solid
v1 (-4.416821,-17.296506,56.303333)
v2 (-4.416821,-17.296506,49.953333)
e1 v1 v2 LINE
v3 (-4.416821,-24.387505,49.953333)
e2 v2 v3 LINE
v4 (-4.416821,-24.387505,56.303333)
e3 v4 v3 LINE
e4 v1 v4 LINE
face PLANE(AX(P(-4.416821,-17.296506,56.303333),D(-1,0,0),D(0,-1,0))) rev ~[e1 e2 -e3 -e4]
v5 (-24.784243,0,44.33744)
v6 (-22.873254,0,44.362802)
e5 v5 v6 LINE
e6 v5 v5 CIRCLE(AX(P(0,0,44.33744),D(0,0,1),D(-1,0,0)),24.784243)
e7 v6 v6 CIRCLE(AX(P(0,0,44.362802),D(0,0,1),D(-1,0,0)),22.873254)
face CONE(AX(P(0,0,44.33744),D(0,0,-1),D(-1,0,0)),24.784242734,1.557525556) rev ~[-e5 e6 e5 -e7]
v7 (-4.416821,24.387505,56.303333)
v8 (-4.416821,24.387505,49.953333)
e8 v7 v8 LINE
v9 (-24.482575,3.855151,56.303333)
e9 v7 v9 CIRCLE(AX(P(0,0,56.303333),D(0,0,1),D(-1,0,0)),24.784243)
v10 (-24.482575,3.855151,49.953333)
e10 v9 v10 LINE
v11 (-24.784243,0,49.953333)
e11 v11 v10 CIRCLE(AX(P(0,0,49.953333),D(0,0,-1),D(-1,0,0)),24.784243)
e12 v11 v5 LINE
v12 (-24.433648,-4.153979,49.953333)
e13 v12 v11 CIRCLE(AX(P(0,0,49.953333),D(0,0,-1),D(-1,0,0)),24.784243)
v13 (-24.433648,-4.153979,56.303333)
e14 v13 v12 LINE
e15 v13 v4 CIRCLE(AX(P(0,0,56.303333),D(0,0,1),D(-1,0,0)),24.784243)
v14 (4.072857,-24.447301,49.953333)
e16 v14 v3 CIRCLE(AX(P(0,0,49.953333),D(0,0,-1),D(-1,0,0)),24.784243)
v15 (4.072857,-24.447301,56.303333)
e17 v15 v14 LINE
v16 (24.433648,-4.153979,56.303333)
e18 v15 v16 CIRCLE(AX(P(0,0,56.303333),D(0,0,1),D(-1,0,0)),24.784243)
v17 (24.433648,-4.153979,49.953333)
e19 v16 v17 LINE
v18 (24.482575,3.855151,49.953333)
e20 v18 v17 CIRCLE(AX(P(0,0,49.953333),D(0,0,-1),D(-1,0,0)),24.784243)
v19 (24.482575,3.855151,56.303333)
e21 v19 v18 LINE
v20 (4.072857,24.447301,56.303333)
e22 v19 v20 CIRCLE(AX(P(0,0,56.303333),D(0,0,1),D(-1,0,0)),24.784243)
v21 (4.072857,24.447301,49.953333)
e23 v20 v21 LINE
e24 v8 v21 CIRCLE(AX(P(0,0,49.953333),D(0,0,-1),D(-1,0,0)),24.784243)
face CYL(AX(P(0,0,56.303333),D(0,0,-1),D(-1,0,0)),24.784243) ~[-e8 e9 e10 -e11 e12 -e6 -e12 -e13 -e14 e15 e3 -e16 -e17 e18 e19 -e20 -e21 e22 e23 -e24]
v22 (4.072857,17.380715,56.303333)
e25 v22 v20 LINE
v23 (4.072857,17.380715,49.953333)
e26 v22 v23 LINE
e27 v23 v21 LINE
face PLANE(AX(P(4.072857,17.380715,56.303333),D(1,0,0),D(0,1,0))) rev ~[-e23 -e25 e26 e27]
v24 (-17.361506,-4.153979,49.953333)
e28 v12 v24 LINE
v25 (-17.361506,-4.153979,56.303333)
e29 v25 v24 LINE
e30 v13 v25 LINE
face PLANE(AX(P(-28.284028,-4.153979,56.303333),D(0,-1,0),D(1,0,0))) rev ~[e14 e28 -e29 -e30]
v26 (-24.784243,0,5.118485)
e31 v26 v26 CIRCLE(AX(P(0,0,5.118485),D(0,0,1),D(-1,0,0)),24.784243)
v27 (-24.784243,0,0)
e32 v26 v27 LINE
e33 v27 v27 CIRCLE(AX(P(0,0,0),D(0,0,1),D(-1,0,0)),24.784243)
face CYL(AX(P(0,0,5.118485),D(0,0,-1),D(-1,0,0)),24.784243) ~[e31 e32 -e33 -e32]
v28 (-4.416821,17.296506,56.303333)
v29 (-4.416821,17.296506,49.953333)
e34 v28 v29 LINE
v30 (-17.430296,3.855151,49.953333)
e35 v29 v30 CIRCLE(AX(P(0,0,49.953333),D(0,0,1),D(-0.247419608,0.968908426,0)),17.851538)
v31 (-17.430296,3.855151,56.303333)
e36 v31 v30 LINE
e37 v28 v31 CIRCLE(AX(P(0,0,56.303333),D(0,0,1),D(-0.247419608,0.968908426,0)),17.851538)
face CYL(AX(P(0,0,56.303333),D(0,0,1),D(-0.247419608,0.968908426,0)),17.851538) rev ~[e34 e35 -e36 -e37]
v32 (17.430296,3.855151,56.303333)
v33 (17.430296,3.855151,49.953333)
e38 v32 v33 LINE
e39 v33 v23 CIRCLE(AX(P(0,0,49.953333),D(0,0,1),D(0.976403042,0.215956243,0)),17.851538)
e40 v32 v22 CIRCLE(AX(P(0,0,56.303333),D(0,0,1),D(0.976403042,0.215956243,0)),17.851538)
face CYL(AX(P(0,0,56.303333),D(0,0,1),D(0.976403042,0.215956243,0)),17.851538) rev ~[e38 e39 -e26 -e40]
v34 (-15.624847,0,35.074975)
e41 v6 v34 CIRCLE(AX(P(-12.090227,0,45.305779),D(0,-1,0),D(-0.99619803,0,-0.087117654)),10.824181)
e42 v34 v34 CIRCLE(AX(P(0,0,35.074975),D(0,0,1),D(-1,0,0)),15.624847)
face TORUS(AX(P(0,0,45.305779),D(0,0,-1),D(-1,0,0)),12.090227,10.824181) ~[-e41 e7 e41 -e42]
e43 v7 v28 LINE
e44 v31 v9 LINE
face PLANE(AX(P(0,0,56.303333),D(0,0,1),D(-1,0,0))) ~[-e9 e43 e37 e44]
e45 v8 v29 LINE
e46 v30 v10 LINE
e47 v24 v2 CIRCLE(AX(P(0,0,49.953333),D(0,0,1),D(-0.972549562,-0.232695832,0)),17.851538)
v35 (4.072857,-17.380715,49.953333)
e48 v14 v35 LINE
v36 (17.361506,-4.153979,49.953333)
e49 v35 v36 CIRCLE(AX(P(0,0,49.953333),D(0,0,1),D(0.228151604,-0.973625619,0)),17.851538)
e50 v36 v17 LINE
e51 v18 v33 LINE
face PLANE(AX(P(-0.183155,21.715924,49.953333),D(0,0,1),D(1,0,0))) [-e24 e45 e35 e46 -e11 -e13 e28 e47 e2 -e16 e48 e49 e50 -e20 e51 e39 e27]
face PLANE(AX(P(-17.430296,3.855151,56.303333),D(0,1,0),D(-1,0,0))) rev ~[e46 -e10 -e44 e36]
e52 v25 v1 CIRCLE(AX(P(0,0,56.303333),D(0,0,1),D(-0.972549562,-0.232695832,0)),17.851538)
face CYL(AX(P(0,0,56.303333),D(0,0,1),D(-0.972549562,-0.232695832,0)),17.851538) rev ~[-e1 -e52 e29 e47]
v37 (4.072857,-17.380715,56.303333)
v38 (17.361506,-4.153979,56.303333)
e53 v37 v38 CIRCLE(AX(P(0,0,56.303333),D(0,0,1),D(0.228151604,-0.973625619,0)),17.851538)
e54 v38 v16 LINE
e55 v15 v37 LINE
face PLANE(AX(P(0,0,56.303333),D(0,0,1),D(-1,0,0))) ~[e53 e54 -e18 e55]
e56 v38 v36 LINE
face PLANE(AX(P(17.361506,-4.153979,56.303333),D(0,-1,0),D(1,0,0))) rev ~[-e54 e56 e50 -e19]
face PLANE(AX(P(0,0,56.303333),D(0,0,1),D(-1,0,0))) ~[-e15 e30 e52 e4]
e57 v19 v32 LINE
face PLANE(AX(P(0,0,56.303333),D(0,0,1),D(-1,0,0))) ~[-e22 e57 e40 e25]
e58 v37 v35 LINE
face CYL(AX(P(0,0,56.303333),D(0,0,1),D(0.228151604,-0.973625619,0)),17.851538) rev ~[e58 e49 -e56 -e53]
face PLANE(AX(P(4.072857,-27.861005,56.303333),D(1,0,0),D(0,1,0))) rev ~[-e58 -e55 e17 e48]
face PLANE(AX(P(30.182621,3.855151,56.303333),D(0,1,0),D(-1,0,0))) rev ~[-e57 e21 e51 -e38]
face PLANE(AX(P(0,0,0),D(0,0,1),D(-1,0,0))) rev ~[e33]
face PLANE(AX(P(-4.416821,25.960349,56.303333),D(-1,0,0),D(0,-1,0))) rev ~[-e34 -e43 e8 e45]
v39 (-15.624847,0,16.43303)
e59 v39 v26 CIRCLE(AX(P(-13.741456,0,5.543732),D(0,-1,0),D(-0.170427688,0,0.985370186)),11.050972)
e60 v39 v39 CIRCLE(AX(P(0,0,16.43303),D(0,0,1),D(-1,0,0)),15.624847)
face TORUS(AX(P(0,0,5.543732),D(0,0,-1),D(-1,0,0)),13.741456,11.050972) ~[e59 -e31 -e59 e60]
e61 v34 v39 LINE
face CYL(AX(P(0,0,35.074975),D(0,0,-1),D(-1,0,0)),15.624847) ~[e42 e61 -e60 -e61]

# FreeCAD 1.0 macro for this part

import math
import FreeCAD as App
import Part
import Sketcher
Q = App.Units.Quantity

doc = App.newDocument("Part")
body = doc.addObject("PartDesign::Body", "Body")

sketch1 = doc.addObject("Sketcher::SketchObject", "Sketch")
body.addObject(sketch1)
sketch1.AttachmentSupport = (doc.XZ_Plane, [""])
sketch1.MapMode = "FlatFace"
sketch1.addGeometry(Part.LineSegment(App.Vector(-24.784243, 0, 0), App.Vector(0, 0, 0)), False)
sketch1.addGeometry(Part.LineSegment(App.Vector(0, 0, 0), App.Vector(0, 56.303333, 0)), False)
sketch1.addGeometry(Part.LineSegment(App.Vector(0, 56.303333, 0), App.Vector(-24.784243, 56.303333, 0)), False)
sketch1.addGeometry(Part.LineSegment(App.Vector(-24.784243, 56.303333, 0), App.Vector(-24.784243, 44.33744, 0)), False)
sketch1.addGeometry(Part.LineSegment(App.Vector(-24.784243, 44.33744, 0), App.Vector(-22.873254, 44.362802, 0)), False)
sketch1.addGeometry(Part.ArcOfCircle(Part.Circle(App.Vector(-12.090227, 45.305779, 0), App.Vector(0, 0, 1), 10.824181), math.radians(-175.002191), math.radians(-109.059419)), False)
sketch1.addGeometry(Part.LineSegment(App.Vector(-15.624847, 35.074975, 0), App.Vector(-15.624847, 16.43303, 0)), False)
sketch1.addGeometry(Part.ArcOfCircle(Part.Circle(App.Vector(-13.741456, 5.543732, 0), App.Vector(0, 0, 1), 11.050972), math.radians(99.812687), math.radians(182.205317)), False)
sketch1.addGeometry(Part.LineSegment(App.Vector(-24.784243, 5.118485, 0), App.Vector(-24.784243, 0, 0)), False)
sketch1.addConstraint(Sketcher.Constraint("Coincident", 0, 2, 1, 1))
sketch1.addConstraint(Sketcher.Constraint("Coincident", 1, 2, 2, 1))
sketch1.addConstraint(Sketcher.Constraint("Coincident", 2, 2, 3, 1))
sketch1.addConstraint(Sketcher.Constraint("Coincident", 3, 2, 4, 1))
sketch1.addConstraint(Sketcher.Constraint("Coincident", 4, 2, 5, 1))
sketch1.addConstraint(Sketcher.Constraint("Coincident", 5, 2, 6, 1))
sketch1.addConstraint(Sketcher.Constraint("Coincident", 6, 2, 7, 1))
sketch1.addConstraint(Sketcher.Constraint("Coincident", 7, 2, 8, 1))
sketch1.addConstraint(Sketcher.Constraint("Coincident", 8, 2, 0, 1))
sketch1.addConstraint(Sketcher.Constraint("Horizontal", 0))
sketch1.addConstraint(Sketcher.Constraint("Vertical", 1))
sketch1.addConstraint(Sketcher.Constraint("Horizontal", 2))
sketch1.addConstraint(Sketcher.Constraint("Vertical", 3))
sketch1.addConstraint(Sketcher.Constraint("Vertical", 6))
sketch1.addConstraint(Sketcher.Constraint("Vertical", 8))
sketch1.addConstraint(Sketcher.Constraint("Coincident", 0, 2, -1, 1))
sketch1.addConstraint(Sketcher.Constraint("Vertical", 3, 2, 7, 2))
sketch1.addConstraint(Sketcher.Constraint("Radius", 5, Q("10.824181 mm")))
sketch1.addConstraint(Sketcher.Constraint("Radius", 7, Q("11.050972 mm")))
sketch1.addConstraint(Sketcher.Constraint("DistanceY", 7, 3, 1, 2, Q("50.759601 mm")))
sketch1.addConstraint(Sketcher.Constraint("DistanceX", 4, 2, 7, 3, Q("9.131799 mm")))
sketch1.addConstraint(Sketcher.Constraint("DistanceY", 7, 3, 6, 2, Q("10.889298 mm")))
sketch1.addConstraint(Sketcher.Constraint("DistanceX", 0, 1, 0, 2, Q("24.784243 mm")))
sketch1.addConstraint(Sketcher.Constraint("DistanceY", 1, 1, 1, 2, Q("56.303333 mm")))
sketch1.addConstraint(Sketcher.Constraint("DistanceY", 3, 2, 3, 1, Q("11.965893 mm")))
sketch1.addConstraint(Sketcher.Constraint("DistanceY", 6, 2, 6, 1, Q("18.641945 mm")))
sketch1.addConstraint(Sketcher.Constraint("DistanceY", 8, 2, 8, 1, Q("5.118485 mm")))
sketch1.addConstraint(Sketcher.Constraint("DistanceY", -1, 1, 5, 3, Q("45.305779 mm")))
revolution = doc.addObject("PartDesign::Revolution", "Revolution")
body.addObject(revolution)
revolution.Profile = sketch1
revolution.ReferenceAxis = (sketch1, ["V_Axis"])
revolution.Angle = 360

sketch2 = doc.addObject("Sketcher::SketchObject", "Sketch001")
body.addObject(sketch2)
sketch2.AttachmentSupport = (doc.XY_Plane, [""])
sketch2.MapMode = "FlatFace"
sketch2.AttachmentOffset = App.Placement(App.Vector(0, 0, 56.303333), App.Rotation())
sketch2.addGeometry(Part.ArcOfCircle(Part.Circle(App.Vector(0, 0, 0), App.Vector(0, 0, 1), 17.851538), math.radians(-76.811727), math.radians(-13.455839)), False)
sketch2.addGeometry(Part.LineSegment(App.Vector(17.361506, -4.153979, 0), App.Vector(30.182621, -4.153979, 0)), False)
sketch2.addGeometry(Part.LineSegment(App.Vector(30.182621, -4.153979, 0), App.Vector(30.182621, 3.855151, 0)), False)
sketch2.addGeometry(Part.LineSegment(App.Vector(30.182621, 3.855151, 0), App.Vector(17.430296, 3.855151, 0)), False)
sketch2.addGeometry(Part.ArcOfCircle(Part.Circle(App.Vector(0, 0, 0), App.Vector(0, 0, 1), 17.851538), math.radians(12.471634), math.radians(76.811727)), False)
sketch2.addGeometry(Part.LineSegment(App.Vector(4.072857, 17.380715, 0), App.Vector(4.072857, 25.960349, 0)), False)
sketch2.addGeometry(Part.LineSegment(App.Vector(4.072857, 25.960349, 0), App.Vector(-4.416821, 25.960349, 0)), False)
sketch2.addGeometry(Part.LineSegment(App.Vector(-4.416821, 25.960349, 0), App.Vector(-4.416821, 17.296506, 0)), False)
sketch2.addGeometry(Part.ArcOfCircle(Part.Circle(App.Vector(0, 0, 0), App.Vector(0, 0, 1), 17.851538), math.radians(104.32487), math.radians(167.528366)), False)
sketch2.addGeometry(Part.LineSegment(App.Vector(-17.430296, 3.855151, 0), App.Vector(-28.284028, 3.855151, 0)), False)
sketch2.addGeometry(Part.LineSegment(App.Vector(-28.284028, 3.855151, 0), App.Vector(-28.284028, -4.153979, 0)), False)
sketch2.addGeometry(Part.LineSegment(App.Vector(-28.284028, -4.153979, 0), App.Vector(-17.361506, -4.153979, 0)), False)
sketch2.addGeometry(Part.ArcOfCircle(Part.Circle(App.Vector(0, 0, 0), App.Vector(0, 0, 1), 17.851538), math.radians(-166.544161), math.radians(-104.32487)), False)
sketch2.addGeometry(Part.LineSegment(App.Vector(-4.416821, -17.296506, 0), App.Vector(-4.416821, -27.861005, 0)), False)
sketch2.addGeometry(Part.LineSegment(App.Vector(-4.416821, -27.861005, 0), App.Vector(4.072857, -27.861005, 0)), False)
sketch2.addGeometry(Part.LineSegment(App.Vector(4.072857, -27.861005, 0), App.Vector(4.072857, -17.380715, 0)), False)
sketch2.addConstraint(Sketcher.Constraint("Coincident", 0, 2, 1, 1))
sketch2.addConstraint(Sketcher.Constraint("Coincident", 1, 2, 2, 1))
sketch2.addConstraint(Sketcher.Constraint("Coincident", 2, 2, 3, 1))
sketch2.addConstraint(Sketcher.Constraint("Coincident", 3, 2, 4, 1))
sketch2.addConstraint(Sketcher.Constraint("Coincident", 4, 2, 5, 1))
sketch2.addConstraint(Sketcher.Constraint("Coincident", 5, 2, 6, 1))
sketch2.addConstraint(Sketcher.Constraint("Coincident", 6, 2, 7, 1))
sketch2.addConstraint(Sketcher.Constraint("Coincident", 7, 2, 8, 1))
sketch2.addConstraint(Sketcher.Constraint("Coincident", 8, 2, 9, 1))
sketch2.addConstraint(Sketcher.Constraint("Coincident", 9, 2, 10, 1))
sketch2.addConstraint(Sketcher.Constraint("Coincident", 10, 2, 11, 1))
sketch2.addConstraint(Sketcher.Constraint("Coincident", 11, 2, 12, 1))
sketch2.addConstraint(Sketcher.Constraint("Coincident", 12, 2, 13, 1))
sketch2.addConstraint(Sketcher.Constraint("Coincident", 13, 2, 14, 1))
sketch2.addConstraint(Sketcher.Constraint("Coincident", 14, 2, 15, 1))
sketch2.addConstraint(Sketcher.Constraint("Coincident", 15, 2, 0, 1))
sketch2.addConstraint(Sketcher.Constraint("Horizontal", 1))
sketch2.addConstraint(Sketcher.Constraint("Vertical", 2))
sketch2.addConstraint(Sketcher.Constraint("Horizontal", 3))
sketch2.addConstraint(Sketcher.Constraint("Vertical", 5))
sketch2.addConstraint(Sketcher.Constraint("Horizontal", 6))
sketch2.addConstraint(Sketcher.Constraint("Vertical", 7))
sketch2.addConstraint(Sketcher.Constraint("Horizontal", 9))
sketch2.addConstraint(Sketcher.Constraint("Vertical", 10))
sketch2.addConstraint(Sketcher.Constraint("Horizontal", 11))
sketch2.addConstraint(Sketcher.Constraint("Vertical", 13))
sketch2.addConstraint(Sketcher.Constraint("Horizontal", 14))
sketch2.addConstraint(Sketcher.Constraint("Vertical", 15))
sketch2.addConstraint(Sketcher.Constraint("Coincident", 0, 3, -1, 1))
sketch2.addConstraint(Sketcher.Constraint("Coincident", 4, 3, -1, 1))
sketch2.addConstraint(Sketcher.Constraint("Coincident", 8, 3, -1, 1))
sketch2.addConstraint(Sketcher.Constraint("Coincident", 12, 3, -1, 1))
sketch2.addConstraint(Sketcher.Constraint("Equal", 0, 4))
sketch2.addConstraint(Sketcher.Constraint("Equal", 4, 8))
sketch2.addConstraint(Sketcher.Constraint("Equal", 8, 12))
sketch2.addConstraint(Sketcher.Constraint("Horizontal", 3, 2, 8, 2))
sketch2.addConstraint(Sketcher.Constraint("Horizontal", 1, 2, 10, 2))
sketch2.addConstraint(Sketcher.Constraint("Vertical", 7, 2, 12, 2))
sketch2.addConstraint(Sketcher.Constraint("Vertical", 5, 2, 14, 2))
sketch2.addConstraint(Sketcher.Constraint("Radius", 0, Q("17.851538 mm")))
sketch2.addConstraint(Sketcher.Constraint("DistanceY", 13, 2, 13, 1, Q("10.564499 mm")))
sketch2.addConstraint(Sketcher.Constraint("DistanceX", 9, 2, 9, 1, Q("10.853732 mm")))
sketch2.addConstraint(Sketcher.Constraint("DistanceY", 2, 1, 2, 2, Q("8.00913 mm")))
sketch2.addConstraint(Sketcher.Constraint("DistanceY", 15, 1, 15, 2, Q("10.48029 mm")))
sketch2.addConstraint(Sketcher.Constraint("DistanceX", 1, 1, 1, 2, Q("12.821115 mm")))
sketch2.addConstraint(Sketcher.Constraint("DistanceX", 3, 2, 3, 1, Q("12.752324 mm")))
sketch2.addConstraint(Sketcher.Constraint("DistanceX", 6, 2, 6, 1, Q("8.489678 mm")))
sketch2.addConstraint(Sketcher.Constraint("DistanceY", 5, 1, 5, 2, Q("8.579634 mm")))
pocket1 = doc.addObject("PartDesign::Pocket", "Pocket")
body.addObject(pocket1)
pocket1.Profile = sketch2
pocket1.Length = Q("0.25 in")

doc.recompute()
